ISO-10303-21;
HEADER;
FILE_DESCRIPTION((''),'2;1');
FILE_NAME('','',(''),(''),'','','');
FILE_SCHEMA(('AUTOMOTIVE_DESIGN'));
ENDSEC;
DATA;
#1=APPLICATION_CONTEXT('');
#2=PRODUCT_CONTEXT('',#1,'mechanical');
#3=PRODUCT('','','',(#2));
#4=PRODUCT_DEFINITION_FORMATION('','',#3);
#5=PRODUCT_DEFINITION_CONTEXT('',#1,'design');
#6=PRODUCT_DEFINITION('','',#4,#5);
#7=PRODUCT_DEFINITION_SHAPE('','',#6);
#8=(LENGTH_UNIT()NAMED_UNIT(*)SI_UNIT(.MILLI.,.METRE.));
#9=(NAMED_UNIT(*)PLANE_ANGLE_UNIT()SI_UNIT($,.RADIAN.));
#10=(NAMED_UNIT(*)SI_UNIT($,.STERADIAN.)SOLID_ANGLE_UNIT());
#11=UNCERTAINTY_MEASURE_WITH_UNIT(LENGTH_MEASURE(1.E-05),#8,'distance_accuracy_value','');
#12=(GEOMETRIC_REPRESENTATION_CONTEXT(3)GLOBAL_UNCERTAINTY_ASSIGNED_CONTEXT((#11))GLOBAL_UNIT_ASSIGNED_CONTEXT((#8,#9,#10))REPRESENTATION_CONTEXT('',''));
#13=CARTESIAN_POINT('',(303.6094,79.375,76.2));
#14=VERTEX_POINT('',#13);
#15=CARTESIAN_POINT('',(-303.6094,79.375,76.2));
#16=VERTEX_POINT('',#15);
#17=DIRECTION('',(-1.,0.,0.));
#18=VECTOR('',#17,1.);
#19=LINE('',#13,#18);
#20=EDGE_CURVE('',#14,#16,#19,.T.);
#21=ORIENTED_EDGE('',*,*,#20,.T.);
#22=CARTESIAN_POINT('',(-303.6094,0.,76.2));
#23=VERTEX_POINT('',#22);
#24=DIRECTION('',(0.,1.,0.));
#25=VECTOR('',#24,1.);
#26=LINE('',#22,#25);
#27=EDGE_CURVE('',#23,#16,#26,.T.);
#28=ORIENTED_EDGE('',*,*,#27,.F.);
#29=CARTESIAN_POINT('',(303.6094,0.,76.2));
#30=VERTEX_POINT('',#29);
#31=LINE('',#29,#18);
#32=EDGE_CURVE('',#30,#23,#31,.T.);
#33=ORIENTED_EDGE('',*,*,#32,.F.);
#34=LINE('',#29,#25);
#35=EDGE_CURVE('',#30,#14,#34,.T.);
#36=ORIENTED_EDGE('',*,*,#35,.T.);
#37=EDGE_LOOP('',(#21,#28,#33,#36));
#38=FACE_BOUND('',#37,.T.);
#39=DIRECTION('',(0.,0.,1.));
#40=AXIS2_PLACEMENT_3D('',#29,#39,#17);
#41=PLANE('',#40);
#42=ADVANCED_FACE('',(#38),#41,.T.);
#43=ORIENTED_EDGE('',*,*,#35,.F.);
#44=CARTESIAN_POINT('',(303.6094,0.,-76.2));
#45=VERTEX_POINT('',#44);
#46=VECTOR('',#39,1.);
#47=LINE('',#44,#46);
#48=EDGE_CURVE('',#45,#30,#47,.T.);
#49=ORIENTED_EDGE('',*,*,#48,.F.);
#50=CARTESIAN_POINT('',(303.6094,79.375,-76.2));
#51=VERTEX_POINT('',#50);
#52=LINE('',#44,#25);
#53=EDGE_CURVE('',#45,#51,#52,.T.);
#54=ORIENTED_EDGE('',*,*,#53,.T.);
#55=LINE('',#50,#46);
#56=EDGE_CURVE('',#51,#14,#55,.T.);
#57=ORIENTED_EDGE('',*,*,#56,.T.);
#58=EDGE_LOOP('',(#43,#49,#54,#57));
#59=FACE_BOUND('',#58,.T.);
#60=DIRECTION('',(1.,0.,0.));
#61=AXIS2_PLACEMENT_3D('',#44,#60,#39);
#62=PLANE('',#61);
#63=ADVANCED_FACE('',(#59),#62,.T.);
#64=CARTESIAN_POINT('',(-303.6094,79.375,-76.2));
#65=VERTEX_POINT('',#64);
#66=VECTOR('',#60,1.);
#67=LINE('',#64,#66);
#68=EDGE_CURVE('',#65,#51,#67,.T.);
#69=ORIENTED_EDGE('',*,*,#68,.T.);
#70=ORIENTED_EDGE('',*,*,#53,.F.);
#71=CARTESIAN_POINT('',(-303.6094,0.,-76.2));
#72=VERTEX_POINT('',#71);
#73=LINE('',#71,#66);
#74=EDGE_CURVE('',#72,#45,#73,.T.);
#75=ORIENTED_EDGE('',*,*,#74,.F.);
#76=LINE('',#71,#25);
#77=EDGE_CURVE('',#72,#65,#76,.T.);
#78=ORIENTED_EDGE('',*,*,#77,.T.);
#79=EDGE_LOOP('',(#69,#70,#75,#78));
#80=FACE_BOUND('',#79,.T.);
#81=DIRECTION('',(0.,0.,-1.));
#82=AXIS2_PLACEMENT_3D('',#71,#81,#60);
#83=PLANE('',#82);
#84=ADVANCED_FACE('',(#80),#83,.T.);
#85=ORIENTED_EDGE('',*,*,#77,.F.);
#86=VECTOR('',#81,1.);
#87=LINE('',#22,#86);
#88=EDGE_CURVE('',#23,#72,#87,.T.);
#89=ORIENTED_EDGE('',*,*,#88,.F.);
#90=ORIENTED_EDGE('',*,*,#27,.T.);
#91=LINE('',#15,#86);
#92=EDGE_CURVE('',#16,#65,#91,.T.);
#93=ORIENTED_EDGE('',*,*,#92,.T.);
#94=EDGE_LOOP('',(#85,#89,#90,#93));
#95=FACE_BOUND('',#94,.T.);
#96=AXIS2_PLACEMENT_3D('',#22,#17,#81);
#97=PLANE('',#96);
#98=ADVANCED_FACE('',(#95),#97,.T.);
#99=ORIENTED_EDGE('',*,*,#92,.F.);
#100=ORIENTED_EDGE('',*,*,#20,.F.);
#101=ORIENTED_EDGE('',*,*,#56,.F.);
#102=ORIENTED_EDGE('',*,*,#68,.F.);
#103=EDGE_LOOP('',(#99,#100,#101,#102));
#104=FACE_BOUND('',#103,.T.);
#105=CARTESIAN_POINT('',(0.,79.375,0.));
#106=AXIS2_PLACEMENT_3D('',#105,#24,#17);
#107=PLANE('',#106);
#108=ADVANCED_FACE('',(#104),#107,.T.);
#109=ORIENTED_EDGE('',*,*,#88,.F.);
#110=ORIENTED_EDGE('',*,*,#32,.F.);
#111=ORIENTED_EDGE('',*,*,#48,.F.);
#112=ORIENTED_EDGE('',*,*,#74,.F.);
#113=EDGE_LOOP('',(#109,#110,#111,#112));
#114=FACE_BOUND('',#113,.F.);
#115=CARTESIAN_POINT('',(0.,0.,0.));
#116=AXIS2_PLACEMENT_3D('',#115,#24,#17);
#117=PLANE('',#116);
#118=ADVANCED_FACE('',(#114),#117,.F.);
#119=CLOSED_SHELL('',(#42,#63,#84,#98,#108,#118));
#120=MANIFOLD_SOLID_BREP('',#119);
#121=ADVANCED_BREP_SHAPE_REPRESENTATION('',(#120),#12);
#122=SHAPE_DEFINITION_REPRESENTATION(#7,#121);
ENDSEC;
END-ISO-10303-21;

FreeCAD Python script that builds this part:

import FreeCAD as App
import Part
import Sketcher
Q = App.Units.Quantity


def add_polygon(sketch, points):
    """Adds a closed chain of lines whose ends are joined by coincident constraints."""
    first, n = sketch.GeometryCount, len(points)
    for a, b in zip(points, points[1:] + points[:1]):
        sketch.addGeometry(Part.LineSegment(App.Vector(*a, 0), App.Vector(*b, 0)), False)
    for i in range(n):
        sketch.addConstraint(Sketcher.Constraint("Coincident", first + i, 2, first + (i + 1) % n, 1))

doc = App.newDocument("Part")
body = doc.addObject("PartDesign::Body", "Body")

# Sketch on XZ plane
sketch1 = doc.addObject("Sketcher::SketchObject", "Sketch")
body.addObject(sketch1)
sketch1.AttachmentSupport = (doc.XZ_Plane, [""])
sketch1.MapMode = "FlatFace"
add_polygon(sketch1, [(304, -76), (-304, -76), (-304, 76), (304, 76)])  # lines 0-3
sketch1.addConstraint([
    Sketcher.Constraint("Horizontal", 0),
    Sketcher.Constraint("Vertical", 1),
    Sketcher.Constraint("Horizontal", 2),
    Sketcher.Constraint("Vertical", 3),
    Sketcher.Constraint("Symmetric", 0, 2, 2, 2, -1, 1),
    Sketcher.Constraint("DistanceY", 1, 1, 1, 2, Q("6 in")),
    Sketcher.Constraint("DistanceX", 0, 2, 0, 1, Q("23.906252 in")),
])
pad1 = doc.addObject("PartDesign::Pad", "Pad")
body.addObject(pad1)
pad1.Profile = sketch1
pad1.Length = Q("3.125 in")
pad1.Reversed = True

doc.recompute()
